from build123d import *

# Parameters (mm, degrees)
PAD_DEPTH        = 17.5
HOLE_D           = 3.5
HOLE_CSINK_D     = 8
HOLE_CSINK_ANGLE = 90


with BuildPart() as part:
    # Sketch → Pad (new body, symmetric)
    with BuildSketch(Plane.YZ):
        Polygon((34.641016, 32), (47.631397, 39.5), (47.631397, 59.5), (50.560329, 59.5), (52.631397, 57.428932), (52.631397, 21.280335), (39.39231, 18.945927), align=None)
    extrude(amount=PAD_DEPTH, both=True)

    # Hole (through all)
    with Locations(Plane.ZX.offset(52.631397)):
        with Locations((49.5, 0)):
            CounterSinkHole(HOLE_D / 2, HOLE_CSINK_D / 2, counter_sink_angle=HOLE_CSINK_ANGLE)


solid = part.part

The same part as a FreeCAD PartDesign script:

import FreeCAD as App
import Part
import Sketcher
Q = App.Units.Quantity


def add_polygon(sketch, points):
    """Adds a closed chain of lines whose ends are joined by coincident constraints."""
    first, n = sketch.GeometryCount, len(points)
    for a, b in zip(points, points[1:] + points[:1]):
        sketch.addGeometry(Part.LineSegment(App.Vector(*a, 0), App.Vector(*b, 0)), False)
    for i in range(n):
        sketch.addConstraint(Sketcher.Constraint("Coincident", first + i, 2, first + (i + 1) % n, 1))

doc = App.newDocument("Part")
body = doc.addObject("PartDesign::Body", "Body")

sketch1 = doc.addObject("Sketcher::SketchObject", "Sketch")
body.addObject(sketch1)
sketch1.AttachmentSupport = (doc.YZ_Plane, [""])
sketch1.MapMode = "FlatFace"
add_polygon(sketch1, [(47.6, 39.5), (34.6, 32), (39.4, 18.9), (52.6, 21.3), (52.6, 57.4), (50.6, 59.5), (47.6, 59.5)])
sketch1.addConstraint(Sketcher.Constraint("Vertical", 3))
sketch1.addConstraint(Sketcher.Constraint("Horizontal", 5))
sketch1.addConstraint(Sketcher.Constraint("Vertical", 6))
sketch1.addConstraint(Sketcher.Constraint("DistanceY", 6, 2, 6, 1, 20.0))
sketch1.addConstraint(Sketcher.Constraint("Angle", 0, Q("-150 deg")))
sketch1.addConstraint(Sketcher.Constraint("Angle", 1, Q("-70 deg")))
sketch1.addConstraint(Sketcher.Constraint("Angle", 2, Q("9.999999 deg")))
sketch1.addConstraint(Sketcher.Constraint("Angle", 4, Q("135 deg")))
sketch1.addConstraint(Sketcher.Constraint("Distance", 0, 15.0))
sketch1.addConstraint(Sketcher.Constraint("DistanceY", -1, 1, 0, 2, 32.0))
sketch1.addConstraint(Sketcher.Constraint("DistanceX", 5, 2, 3, 2, 5.0))
sketch1.addConstraint(Sketcher.Constraint("Distance", 2, 13.443321))
sketch1.addConstraint(Sketcher.Constraint("DistanceX", 5, 2, 5, 1, 2.928932))
sketch1.addConstraint(Sketcher.Constraint("DistanceX", -1, 1, 1, 2, 39.39231))
pad1 = doc.addObject("PartDesign::Pad", "Pad")
body.addObject(pad1)
pad1.Profile = sketch1
pad1.Length = 35
pad1.Midplane = True

sketch2 = doc.addObject("Sketcher::SketchObject", "Sketch001")
body.addObject(sketch2)
sketch2.AttachmentSupport = (doc.XZ_Plane, [""])
sketch2.MapMode = "FlatFace"
sketch2.AttachmentOffset = App.Placement(App.Vector(0, 0, -52.631397), App.Rotation())
sketch2.addGeometry(Part.Circle(App.Vector(0, 49.5, 0), App.Vector(0, 0, 1), 1.8), False)
sketch2.addConstraint(Sketcher.Constraint("PointOnObject", 0, 3, -2))
sketch2.addConstraint(Sketcher.Constraint("Diameter", 0, 3.5))
sketch2.addConstraint(Sketcher.Constraint("DistanceY", -1, 1, 0, 3, 49.5))
doc.recompute()
hole = doc.addObject("PartDesign::Hole", "Hole")
body.addObject(hole)
hole.Profile = sketch2
hole.ThreadType = "None"
hole.Diameter = 3.5
hole.DepthType = "ThroughAll"
hole.HoleCutType = "Countersink"
hole.HoleCutDiameter = 8
hole.HoleCutCountersinkAngle = 90
hole.Reversed = True

doc.recompute()
